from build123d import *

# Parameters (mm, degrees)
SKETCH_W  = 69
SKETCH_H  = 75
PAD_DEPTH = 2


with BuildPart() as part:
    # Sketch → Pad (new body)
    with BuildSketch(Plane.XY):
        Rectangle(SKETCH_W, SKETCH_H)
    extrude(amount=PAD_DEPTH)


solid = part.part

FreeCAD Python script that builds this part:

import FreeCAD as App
import Part
import Sketcher

V = App.Vector
Q = App.Units.Quantity

doc = App.newDocument("Part")
body = doc.addObject("PartDesign::Body", "Body")

# Sketch on XY plane
sketch1 = body.newObject("Sketcher::SketchObject", "Sketch")
sketch1.AttachmentSupport = (doc.getObject("XY_Plane"), [""])
sketch1.MapMode = "FlatFace"
sketch1.addGeometry([
    Part.LineSegment(V(-34, 38, 0), V(-34, -38, 0)),
    Part.LineSegment(V(-34, -38, 0), V(34, -38, 0)),
    Part.LineSegment(V(34, -38, 0), V(34, 38, 0)),
    Part.LineSegment(V(34, 38, 0), V(-34, 38, 0)),
], False)
sketch1.addConstraint([
    Sketcher.Constraint("Coincident", 0, 2, 1, 1),
    Sketcher.Constraint("Coincident", 1, 2, 2, 1),
    Sketcher.Constraint("Coincident", 2, 2, 3, 1),
    Sketcher.Constraint("Coincident", 3, 2, 0, 1),
    Sketcher.Constraint("Vertical", 0),
    Sketcher.Constraint("Horizontal", 1),
    Sketcher.Constraint("Vertical", 2),
    Sketcher.Constraint("Horizontal", 3),
    Sketcher.Constraint("Symmetric", 0, 2, 2, 2, -1, 1),
    Sketcher.Constraint("DistanceX", 1, 1, 1, 2, Q("69 mm")),
    Sketcher.Constraint("DistanceY", 0, 2, 0, 1, Q("75 mm")),
])
pad1 = body.newObject("PartDesign::Pad", "Pad")
pad1.Profile = sketch1
pad1.Length = 2

doc.recompute()
